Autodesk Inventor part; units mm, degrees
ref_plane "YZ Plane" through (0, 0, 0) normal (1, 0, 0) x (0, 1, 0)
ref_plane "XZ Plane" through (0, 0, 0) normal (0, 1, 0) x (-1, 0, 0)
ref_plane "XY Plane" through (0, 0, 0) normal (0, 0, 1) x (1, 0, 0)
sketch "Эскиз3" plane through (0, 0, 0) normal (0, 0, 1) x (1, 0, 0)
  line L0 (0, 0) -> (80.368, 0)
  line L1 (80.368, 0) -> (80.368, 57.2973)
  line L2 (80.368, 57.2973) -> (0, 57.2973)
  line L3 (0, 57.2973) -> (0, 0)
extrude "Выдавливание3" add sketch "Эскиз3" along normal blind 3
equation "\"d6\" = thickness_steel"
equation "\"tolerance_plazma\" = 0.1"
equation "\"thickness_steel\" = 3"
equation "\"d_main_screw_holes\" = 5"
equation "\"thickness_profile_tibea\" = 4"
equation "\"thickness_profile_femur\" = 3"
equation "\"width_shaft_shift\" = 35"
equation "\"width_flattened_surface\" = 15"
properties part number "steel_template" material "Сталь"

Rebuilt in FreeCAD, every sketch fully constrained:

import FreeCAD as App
import Part
import Sketcher
from FreeCAD import Vector
Q = App.Units.Quantity


def add_polygon(sketch, points):
    """Adds a closed chain of lines whose ends are joined by coincident constraints."""
    first, n = sketch.GeometryCount, len(points)
    for a, b in zip(points, points[1:] + points[:1]):
        sketch.addGeometry(Part.LineSegment(App.Vector(*a, 0), App.Vector(*b, 0)), False)
    for i in range(n):
        sketch.addConstraint(Sketcher.Constraint("Coincident", first + i, 2, first + (i + 1) % n, 1))

doc = App.newDocument("Part")
body = doc.addObject("PartDesign::Body", "Body")

# Sketch on XY plane
sketch1 = doc.addObject("Sketcher::SketchObject", "Sketch")
body.addObject(sketch1)
sketch1.AttachmentSupport = (doc.XY_Plane, [""])
sketch1.MapMode = "FlatFace"
add_polygon(sketch1, [(0, 57.2973), (0, 0), (80.368, 0), (80.368, 57.2973)])  # lines 0-3
sketch1.addConstraint(Sketcher.Constraint("Vertical", 0))
sketch1.addConstraint(Sketcher.Constraint("Horizontal", 1))
sketch1.addConstraint(Sketcher.Constraint("Vertical", 2))
sketch1.addConstraint(Sketcher.Constraint("Horizontal", 3))
sketch1.addConstraint(Sketcher.Constraint("Coincident", 0, 2, -1, 1))
sketch1.addConstraint(Sketcher.Constraint("DistanceX", 1, 1, 1, 2, Q("80.368 mm")))
sketch1.addConstraint(Sketcher.Constraint("DistanceY", 0, 2, 0, 1, Q("57.2973 mm")))
pad1 = doc.addObject("PartDesign::Pad", "Pad")
body.addObject(pad1)
pad1.Profile = sketch1
pad1.Length = 3

doc.recompute()
